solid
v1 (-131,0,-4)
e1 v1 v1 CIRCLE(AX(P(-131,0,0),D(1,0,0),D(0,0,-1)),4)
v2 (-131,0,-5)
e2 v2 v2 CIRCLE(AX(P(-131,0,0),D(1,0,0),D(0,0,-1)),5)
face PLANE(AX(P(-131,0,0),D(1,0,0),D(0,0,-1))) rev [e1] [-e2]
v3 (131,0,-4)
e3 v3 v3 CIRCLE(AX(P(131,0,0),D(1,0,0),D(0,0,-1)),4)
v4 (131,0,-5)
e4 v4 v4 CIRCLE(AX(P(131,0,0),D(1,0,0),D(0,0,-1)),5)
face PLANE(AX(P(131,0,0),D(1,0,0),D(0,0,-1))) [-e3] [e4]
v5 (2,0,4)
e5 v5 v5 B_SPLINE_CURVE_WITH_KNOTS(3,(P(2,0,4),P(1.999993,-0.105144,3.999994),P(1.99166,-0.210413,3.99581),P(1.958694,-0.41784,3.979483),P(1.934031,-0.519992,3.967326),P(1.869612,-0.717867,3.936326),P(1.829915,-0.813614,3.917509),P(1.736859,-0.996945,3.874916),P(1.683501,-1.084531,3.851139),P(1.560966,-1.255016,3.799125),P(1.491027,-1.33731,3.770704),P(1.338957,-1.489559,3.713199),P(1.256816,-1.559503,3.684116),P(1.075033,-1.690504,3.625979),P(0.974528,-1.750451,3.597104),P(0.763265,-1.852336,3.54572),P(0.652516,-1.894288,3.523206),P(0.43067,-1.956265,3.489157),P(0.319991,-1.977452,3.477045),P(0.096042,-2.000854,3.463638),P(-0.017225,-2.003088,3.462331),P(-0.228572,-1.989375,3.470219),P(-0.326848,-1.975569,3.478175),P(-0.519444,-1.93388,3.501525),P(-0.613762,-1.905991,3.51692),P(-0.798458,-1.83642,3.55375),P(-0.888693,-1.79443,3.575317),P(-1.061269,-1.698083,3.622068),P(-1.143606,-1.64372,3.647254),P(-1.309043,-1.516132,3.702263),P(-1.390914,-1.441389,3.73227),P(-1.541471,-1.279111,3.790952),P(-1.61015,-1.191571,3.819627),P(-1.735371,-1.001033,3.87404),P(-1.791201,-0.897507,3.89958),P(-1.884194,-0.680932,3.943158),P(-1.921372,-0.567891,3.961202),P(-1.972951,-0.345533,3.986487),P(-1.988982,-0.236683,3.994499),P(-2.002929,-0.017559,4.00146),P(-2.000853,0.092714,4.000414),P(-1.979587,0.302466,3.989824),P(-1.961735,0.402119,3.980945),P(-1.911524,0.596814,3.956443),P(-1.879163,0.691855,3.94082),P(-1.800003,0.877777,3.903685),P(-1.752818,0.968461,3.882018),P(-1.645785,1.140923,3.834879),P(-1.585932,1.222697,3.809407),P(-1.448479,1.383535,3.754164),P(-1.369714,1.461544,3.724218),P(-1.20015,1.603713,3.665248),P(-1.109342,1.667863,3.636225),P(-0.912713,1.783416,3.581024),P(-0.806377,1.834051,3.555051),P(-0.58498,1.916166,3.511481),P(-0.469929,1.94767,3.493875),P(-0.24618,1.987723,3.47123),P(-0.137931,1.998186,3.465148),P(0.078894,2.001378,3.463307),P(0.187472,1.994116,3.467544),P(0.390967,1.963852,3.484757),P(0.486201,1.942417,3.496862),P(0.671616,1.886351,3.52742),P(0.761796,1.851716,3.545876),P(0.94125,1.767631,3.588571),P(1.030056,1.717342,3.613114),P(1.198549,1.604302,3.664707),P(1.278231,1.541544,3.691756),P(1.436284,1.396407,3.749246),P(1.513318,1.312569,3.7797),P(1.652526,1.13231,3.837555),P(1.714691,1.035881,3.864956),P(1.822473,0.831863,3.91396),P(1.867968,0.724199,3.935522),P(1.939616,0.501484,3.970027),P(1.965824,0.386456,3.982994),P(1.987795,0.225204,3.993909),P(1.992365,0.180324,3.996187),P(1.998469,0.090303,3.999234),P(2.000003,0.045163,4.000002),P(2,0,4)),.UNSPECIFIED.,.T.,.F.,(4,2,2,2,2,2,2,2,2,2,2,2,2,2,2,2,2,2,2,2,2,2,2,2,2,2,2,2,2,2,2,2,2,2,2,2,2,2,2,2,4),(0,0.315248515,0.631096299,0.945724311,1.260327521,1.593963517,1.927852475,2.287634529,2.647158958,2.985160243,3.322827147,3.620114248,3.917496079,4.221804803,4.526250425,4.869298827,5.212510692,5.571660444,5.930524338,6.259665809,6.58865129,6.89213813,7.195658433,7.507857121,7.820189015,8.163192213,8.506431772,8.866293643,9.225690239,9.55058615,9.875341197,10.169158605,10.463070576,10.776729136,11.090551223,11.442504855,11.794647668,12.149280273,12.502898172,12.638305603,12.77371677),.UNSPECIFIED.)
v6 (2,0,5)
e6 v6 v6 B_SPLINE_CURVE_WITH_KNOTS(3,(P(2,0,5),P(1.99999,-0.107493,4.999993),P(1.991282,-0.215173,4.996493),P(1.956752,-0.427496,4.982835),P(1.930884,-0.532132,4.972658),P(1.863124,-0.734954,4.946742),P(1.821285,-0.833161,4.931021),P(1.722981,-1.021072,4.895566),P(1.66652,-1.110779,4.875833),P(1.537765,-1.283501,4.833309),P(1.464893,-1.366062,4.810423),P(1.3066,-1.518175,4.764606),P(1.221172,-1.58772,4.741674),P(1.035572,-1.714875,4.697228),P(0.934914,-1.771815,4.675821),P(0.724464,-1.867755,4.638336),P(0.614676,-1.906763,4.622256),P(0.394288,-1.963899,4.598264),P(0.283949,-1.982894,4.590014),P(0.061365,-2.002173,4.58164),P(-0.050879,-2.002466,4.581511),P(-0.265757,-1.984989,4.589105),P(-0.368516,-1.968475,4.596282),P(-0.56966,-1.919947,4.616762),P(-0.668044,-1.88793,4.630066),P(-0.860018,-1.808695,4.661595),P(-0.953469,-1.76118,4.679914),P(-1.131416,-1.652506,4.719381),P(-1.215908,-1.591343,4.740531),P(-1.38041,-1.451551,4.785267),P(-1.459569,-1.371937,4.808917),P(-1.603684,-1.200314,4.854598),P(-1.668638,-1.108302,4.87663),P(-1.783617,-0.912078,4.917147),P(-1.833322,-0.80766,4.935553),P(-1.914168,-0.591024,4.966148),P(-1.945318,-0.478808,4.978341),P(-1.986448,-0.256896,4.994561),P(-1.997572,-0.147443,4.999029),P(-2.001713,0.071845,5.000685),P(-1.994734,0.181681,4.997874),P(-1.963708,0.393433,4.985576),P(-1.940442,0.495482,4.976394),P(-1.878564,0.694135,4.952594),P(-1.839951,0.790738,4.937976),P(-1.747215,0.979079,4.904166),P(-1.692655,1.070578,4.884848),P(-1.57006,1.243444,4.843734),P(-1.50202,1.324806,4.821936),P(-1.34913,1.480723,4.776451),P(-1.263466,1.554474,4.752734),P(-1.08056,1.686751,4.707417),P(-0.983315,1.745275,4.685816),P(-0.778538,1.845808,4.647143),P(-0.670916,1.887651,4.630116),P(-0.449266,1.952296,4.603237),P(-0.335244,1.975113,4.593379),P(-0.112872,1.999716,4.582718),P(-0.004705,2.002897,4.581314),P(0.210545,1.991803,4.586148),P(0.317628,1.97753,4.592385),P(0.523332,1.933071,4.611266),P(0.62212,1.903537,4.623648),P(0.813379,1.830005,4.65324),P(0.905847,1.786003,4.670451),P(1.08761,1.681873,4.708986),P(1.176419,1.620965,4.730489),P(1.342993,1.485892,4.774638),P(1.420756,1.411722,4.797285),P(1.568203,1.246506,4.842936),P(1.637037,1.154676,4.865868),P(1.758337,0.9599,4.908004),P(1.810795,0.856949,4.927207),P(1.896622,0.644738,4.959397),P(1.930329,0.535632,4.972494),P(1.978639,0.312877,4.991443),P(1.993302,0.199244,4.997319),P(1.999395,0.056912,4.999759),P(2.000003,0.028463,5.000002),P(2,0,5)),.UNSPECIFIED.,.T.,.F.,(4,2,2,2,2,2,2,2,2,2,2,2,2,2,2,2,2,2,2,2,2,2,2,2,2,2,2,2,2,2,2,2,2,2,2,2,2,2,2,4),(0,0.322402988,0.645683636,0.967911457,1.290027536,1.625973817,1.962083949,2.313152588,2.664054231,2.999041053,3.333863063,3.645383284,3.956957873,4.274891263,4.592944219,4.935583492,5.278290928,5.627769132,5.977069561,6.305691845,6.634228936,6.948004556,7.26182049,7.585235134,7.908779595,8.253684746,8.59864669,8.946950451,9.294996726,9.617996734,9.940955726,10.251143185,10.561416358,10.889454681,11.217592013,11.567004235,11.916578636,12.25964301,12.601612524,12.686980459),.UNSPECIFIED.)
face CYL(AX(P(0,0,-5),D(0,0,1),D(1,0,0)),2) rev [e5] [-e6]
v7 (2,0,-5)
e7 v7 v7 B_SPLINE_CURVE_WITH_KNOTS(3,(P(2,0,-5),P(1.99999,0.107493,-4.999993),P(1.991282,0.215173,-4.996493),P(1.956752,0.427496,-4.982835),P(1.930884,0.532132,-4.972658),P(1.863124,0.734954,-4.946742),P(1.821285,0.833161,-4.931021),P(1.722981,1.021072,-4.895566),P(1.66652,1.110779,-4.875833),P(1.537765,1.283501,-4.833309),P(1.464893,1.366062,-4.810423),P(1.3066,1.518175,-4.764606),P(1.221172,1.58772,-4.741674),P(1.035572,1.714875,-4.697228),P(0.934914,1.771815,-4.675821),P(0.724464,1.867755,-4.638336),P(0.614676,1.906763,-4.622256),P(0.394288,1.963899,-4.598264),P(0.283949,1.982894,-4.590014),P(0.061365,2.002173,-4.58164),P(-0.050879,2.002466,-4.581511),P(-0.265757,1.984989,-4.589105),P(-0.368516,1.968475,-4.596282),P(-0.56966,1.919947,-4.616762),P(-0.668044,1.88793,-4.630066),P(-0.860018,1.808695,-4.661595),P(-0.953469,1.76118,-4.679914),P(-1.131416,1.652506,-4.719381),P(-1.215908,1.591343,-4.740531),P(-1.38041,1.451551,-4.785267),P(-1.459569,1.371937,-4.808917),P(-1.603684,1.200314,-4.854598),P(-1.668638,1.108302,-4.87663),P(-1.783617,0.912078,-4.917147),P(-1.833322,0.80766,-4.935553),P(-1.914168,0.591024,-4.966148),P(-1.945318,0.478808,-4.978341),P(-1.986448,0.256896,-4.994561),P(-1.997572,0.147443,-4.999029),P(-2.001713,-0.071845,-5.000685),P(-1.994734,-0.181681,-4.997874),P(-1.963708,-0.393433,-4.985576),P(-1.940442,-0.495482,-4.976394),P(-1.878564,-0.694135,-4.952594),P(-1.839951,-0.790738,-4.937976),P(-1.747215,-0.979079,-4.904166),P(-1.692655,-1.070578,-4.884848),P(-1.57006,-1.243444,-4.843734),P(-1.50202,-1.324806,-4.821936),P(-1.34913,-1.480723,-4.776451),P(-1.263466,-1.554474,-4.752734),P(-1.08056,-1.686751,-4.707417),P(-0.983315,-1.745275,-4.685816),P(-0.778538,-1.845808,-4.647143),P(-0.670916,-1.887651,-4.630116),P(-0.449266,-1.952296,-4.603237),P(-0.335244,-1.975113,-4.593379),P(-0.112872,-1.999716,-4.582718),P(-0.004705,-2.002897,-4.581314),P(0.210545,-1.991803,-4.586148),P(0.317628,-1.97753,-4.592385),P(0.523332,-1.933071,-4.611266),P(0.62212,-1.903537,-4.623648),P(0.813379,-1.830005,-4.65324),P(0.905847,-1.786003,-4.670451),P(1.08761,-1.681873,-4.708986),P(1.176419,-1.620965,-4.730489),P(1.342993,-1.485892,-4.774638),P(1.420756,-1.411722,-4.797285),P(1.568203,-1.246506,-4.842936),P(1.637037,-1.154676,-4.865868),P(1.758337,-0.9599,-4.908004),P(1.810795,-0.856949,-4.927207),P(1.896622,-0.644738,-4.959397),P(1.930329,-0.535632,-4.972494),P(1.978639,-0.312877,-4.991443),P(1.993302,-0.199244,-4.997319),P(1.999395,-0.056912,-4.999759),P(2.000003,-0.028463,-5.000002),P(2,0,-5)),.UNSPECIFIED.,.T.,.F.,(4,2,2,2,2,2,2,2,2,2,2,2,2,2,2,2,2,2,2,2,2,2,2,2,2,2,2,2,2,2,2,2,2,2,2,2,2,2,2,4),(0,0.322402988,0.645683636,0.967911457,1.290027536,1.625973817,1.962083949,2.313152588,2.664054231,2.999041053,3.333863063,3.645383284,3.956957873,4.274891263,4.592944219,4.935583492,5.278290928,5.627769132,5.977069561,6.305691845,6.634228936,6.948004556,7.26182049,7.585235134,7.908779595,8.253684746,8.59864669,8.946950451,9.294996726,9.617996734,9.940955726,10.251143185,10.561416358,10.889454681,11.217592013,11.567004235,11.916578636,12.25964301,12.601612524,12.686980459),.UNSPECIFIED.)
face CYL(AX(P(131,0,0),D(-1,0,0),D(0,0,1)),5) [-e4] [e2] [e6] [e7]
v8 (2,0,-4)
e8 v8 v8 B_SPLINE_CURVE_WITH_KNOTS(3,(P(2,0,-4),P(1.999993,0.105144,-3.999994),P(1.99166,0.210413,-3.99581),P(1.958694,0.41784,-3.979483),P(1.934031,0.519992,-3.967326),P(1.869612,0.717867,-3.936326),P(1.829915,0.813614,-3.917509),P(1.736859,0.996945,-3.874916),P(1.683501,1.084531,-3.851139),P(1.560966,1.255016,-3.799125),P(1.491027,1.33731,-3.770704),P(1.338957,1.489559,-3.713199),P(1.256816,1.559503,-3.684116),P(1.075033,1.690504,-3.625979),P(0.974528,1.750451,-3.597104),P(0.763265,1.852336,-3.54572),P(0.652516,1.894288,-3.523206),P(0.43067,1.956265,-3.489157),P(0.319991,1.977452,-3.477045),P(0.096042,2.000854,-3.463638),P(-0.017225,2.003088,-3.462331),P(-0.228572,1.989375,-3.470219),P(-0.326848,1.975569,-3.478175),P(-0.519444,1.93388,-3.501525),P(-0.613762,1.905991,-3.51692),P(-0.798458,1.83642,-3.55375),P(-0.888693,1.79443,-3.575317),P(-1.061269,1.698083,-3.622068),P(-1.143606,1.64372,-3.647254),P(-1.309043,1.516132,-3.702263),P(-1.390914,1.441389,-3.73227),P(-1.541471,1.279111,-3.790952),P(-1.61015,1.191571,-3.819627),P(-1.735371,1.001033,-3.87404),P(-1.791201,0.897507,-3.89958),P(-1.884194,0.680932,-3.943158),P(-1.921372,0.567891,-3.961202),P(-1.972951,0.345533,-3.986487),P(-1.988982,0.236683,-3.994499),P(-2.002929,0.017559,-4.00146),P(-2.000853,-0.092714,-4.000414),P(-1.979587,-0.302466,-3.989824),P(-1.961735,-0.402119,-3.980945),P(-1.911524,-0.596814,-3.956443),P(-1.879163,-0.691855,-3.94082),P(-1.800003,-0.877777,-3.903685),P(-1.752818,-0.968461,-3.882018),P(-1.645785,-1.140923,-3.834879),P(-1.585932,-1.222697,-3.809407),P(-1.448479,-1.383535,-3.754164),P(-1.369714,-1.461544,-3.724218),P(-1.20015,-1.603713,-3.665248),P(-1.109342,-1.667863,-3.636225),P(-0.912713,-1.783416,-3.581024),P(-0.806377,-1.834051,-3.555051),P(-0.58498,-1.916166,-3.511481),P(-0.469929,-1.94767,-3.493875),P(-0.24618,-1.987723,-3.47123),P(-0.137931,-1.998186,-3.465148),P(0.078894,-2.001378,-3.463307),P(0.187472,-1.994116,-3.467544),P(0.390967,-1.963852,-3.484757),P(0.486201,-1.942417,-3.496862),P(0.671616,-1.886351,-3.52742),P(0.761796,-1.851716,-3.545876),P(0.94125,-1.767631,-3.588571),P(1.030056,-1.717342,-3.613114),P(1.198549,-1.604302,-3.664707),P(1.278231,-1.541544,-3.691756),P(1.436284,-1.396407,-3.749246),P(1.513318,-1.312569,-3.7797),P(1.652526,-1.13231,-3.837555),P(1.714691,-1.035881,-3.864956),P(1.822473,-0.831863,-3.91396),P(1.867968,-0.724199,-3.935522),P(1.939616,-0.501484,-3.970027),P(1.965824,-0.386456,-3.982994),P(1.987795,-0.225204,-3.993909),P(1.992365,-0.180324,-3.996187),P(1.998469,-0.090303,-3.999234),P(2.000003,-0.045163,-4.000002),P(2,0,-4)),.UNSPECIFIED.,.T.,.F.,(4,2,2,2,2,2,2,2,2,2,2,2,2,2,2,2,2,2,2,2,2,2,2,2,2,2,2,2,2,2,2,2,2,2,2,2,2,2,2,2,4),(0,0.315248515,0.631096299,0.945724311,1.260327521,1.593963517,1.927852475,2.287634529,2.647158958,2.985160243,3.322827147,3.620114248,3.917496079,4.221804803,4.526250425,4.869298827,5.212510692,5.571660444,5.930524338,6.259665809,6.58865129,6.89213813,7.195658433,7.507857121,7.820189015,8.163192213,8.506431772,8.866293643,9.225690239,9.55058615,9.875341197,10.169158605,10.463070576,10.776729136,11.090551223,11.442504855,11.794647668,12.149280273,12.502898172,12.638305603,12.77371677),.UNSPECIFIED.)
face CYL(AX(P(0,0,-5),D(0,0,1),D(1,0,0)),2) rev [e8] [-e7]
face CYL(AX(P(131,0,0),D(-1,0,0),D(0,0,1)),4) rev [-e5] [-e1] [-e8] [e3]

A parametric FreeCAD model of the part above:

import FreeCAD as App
import Part
import Sketcher

V = App.Vector
Q = App.Units.Quantity

doc = App.newDocument("Part")
body = doc.addObject("PartDesign::Body", "Body")

# Sketch on YZ plane
sketch1 = doc.addObject("Sketcher::SketchObject", "Sketch")
body.addObject(sketch1)
sketch1.AttachmentSupport = (doc.YZ_Plane, [""])
sketch1.MapMode = "FlatFace"
sketch1.addGeometry(Part.Circle(V(0, 0, 0), V(0, 0, 1), 5), False)
sketch1.addGeometry(Part.Circle(V(0, 0, 0), V(0, 0, 1), 4), False)
sketch1.addConstraint(Sketcher.Constraint("Coincident", 0, 3, -1, 1))
sketch1.addConstraint(Sketcher.Constraint("Coincident", 1, 3, -1, 1))
sketch1.addConstraint(Sketcher.Constraint("Diameter", 0, Q("10 mm")))
sketch1.addConstraint(Sketcher.Constraint("Diameter", 1, Q("8 mm")))
pad1 = doc.addObject("PartDesign::Pad", "Pad")
body.addObject(pad1)
pad1.Profile = sketch1
pad1.Length = 262
pad1.Midplane = True

# Sketch on XY plane
sketch2 = doc.addObject("Sketcher::SketchObject", "Sketch001")
body.addObject(sketch2)
sketch2.AttachmentSupport = (doc.XY_Plane, [""])
sketch2.MapMode = "FlatFace"
sketch2.addGeometry(Part.Circle(V(0, 0, 0), V(0, 0, 1), 2), False)
sketch2.addConstraint(Sketcher.Constraint("Coincident", 0, 3, -1, 1))
sketch2.addConstraint(Sketcher.Constraint("Diameter", 0, Q("4 mm")))
pocket1 = doc.addObject("PartDesign::Pocket", "Pocket")
body.addObject(pocket1)
pocket1.Profile = sketch2
pocket1.Type = "ThroughAll"
pocket1.Midplane = True

doc.recompute()
